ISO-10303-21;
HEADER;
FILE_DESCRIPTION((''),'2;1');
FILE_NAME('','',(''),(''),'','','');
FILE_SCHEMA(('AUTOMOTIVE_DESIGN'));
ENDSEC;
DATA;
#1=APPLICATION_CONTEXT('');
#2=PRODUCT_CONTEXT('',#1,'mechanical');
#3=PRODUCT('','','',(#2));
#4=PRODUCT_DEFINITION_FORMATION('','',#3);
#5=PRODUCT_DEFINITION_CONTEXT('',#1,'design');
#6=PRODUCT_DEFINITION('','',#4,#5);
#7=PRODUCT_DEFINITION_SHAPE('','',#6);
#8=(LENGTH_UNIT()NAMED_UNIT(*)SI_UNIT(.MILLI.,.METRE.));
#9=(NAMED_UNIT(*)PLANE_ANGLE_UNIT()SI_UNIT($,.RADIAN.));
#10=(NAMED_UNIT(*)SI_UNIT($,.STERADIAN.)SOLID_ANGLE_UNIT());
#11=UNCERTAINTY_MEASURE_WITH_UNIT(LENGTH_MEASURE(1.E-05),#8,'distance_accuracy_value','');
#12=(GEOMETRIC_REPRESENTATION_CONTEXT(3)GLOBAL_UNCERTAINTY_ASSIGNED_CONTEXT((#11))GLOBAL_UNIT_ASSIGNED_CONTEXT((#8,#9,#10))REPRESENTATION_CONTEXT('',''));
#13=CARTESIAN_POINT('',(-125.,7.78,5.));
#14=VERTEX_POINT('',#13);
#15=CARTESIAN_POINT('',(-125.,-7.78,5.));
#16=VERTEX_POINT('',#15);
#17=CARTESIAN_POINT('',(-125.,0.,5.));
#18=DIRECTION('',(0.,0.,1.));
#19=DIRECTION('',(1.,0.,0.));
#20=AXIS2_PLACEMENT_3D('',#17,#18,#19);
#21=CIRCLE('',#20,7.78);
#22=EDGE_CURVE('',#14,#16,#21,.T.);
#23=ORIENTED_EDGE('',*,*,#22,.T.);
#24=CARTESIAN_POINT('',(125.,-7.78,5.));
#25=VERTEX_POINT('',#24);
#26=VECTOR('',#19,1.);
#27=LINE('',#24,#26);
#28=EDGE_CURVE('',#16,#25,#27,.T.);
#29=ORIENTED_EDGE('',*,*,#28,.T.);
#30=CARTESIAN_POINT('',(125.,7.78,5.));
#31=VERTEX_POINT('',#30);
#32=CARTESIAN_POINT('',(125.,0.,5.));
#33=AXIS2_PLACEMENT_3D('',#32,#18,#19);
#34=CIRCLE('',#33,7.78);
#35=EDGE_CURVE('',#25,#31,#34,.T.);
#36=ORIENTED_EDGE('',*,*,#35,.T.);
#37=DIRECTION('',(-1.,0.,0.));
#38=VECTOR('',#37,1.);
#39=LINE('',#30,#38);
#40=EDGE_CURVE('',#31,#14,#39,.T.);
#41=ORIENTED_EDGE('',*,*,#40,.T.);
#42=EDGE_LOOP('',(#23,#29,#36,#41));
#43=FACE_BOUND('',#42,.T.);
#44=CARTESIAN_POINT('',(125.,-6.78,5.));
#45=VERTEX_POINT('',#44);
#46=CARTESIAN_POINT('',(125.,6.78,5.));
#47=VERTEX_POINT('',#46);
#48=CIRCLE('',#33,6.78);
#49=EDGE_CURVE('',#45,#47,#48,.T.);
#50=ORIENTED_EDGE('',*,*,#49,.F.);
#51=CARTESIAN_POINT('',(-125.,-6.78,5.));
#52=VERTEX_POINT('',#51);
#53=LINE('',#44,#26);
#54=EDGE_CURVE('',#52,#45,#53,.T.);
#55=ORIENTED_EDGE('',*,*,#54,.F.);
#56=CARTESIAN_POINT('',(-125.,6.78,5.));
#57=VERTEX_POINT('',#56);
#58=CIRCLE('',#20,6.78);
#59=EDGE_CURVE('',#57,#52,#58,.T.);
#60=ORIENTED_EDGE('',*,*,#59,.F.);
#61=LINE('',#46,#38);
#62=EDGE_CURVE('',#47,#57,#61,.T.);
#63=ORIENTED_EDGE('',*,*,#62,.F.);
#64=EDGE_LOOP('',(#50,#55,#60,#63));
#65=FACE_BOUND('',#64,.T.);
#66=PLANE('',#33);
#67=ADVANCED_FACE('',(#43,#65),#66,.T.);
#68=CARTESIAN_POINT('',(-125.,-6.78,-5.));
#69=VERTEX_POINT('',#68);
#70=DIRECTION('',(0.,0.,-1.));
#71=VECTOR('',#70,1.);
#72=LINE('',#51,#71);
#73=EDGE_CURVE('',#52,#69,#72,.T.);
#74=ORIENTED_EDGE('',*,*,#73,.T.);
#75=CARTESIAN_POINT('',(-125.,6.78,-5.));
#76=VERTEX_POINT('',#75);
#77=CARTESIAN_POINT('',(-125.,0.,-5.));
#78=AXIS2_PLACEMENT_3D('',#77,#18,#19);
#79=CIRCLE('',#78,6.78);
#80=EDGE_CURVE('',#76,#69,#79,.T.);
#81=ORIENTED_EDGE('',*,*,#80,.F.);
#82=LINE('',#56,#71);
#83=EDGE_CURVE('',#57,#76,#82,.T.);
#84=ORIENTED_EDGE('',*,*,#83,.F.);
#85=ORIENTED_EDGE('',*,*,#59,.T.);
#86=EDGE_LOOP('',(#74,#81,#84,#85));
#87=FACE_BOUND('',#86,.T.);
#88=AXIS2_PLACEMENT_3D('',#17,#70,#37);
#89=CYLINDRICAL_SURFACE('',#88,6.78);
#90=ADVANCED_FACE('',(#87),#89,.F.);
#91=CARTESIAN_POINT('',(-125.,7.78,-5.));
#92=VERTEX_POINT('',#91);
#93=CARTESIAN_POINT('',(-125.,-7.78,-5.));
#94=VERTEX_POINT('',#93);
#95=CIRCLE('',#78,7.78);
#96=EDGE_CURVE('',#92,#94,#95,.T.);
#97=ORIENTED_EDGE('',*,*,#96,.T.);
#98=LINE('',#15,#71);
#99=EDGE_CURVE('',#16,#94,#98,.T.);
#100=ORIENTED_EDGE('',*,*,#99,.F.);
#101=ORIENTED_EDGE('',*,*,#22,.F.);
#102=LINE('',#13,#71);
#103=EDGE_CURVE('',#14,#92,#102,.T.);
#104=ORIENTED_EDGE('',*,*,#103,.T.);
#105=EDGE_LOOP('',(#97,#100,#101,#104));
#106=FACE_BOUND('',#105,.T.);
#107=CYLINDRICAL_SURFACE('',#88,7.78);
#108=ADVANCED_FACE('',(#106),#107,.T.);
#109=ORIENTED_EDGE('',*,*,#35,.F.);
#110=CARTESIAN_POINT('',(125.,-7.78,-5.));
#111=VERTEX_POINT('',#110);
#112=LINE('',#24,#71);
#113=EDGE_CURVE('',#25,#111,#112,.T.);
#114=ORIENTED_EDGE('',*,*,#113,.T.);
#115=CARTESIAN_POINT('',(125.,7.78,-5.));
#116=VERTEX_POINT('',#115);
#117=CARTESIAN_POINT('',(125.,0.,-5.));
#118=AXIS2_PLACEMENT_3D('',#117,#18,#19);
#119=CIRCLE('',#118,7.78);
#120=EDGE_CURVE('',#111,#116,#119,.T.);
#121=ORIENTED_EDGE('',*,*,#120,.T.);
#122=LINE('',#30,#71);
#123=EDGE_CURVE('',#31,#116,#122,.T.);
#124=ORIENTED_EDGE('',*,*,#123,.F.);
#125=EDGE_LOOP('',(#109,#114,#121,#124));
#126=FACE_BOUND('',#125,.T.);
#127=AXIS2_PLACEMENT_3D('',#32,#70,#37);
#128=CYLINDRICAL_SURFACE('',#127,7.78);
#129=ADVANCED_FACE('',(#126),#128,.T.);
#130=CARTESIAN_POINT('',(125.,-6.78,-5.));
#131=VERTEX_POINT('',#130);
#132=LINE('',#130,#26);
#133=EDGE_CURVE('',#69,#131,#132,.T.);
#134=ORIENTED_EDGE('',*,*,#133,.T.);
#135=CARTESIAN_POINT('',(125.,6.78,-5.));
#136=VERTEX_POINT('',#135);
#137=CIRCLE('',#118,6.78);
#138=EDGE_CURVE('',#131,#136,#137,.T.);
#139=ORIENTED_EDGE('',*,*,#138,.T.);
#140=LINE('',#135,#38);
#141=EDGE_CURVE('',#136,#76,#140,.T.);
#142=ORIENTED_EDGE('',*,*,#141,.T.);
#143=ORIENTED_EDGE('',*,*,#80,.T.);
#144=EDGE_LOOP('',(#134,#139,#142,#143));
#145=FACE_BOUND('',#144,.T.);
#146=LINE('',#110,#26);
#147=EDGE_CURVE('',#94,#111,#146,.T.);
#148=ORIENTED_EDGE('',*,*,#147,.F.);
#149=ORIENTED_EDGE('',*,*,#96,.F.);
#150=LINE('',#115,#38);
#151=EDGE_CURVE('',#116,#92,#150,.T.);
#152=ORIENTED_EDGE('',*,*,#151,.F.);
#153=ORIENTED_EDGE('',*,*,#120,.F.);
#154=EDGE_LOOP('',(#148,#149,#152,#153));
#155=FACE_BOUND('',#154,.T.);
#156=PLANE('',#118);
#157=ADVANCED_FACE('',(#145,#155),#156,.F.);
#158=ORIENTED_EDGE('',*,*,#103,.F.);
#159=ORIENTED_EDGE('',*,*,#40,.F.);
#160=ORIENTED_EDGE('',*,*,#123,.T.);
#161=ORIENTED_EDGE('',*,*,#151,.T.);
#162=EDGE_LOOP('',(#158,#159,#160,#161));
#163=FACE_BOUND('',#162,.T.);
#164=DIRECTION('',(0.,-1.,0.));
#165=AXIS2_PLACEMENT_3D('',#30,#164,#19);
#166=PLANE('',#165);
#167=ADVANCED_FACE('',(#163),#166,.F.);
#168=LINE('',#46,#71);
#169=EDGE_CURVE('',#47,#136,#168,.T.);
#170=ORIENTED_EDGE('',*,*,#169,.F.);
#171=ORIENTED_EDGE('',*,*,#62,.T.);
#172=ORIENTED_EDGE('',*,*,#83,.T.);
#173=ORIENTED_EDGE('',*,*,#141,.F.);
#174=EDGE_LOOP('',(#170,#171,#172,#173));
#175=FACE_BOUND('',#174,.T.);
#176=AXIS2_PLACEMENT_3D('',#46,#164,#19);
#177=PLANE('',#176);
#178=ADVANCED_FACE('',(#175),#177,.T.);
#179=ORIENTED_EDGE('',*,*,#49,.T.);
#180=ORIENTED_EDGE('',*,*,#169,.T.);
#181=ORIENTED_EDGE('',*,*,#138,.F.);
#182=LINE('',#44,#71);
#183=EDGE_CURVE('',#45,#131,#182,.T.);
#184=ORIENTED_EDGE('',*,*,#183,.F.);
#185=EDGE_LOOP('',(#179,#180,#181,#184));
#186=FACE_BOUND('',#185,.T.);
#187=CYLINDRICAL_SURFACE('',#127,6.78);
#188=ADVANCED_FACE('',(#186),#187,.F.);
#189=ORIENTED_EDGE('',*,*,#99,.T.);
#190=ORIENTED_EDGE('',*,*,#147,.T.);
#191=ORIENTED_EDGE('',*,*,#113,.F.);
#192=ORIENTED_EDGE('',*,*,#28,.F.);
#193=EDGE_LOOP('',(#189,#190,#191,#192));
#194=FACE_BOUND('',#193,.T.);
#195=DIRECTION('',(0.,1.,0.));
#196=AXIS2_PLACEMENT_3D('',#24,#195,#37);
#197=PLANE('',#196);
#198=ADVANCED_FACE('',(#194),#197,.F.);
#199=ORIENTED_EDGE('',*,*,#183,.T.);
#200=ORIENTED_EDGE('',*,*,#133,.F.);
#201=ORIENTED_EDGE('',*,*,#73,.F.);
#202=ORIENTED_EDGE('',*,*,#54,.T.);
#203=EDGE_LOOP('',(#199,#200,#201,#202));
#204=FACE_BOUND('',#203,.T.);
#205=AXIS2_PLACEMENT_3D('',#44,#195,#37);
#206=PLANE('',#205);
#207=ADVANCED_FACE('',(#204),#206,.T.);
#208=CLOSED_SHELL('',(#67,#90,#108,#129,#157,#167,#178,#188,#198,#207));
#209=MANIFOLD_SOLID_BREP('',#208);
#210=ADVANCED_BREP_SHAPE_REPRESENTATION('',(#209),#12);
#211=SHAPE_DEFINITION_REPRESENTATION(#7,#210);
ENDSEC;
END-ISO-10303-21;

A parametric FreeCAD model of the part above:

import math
import FreeCAD as App
import Part
import Sketcher
from FreeCAD import Vector

doc = App.newDocument("Part")
params = doc.addObject("Spreadsheet::Sheet", "Params")
for row, (alias, value) in enumerate([
    ("sketch1_width", "250 mm"),
    ("sketch1_radius", "7.78 mm"),
    ("sketch1_radius2", "6.78 mm"),
    ("pad1_length", "10 mm"),
], start=1):
    params.set(f"A{row}", alias)
    params.set(f"B{row}", "=" + value)
    params.setAlias(f"B{row}", alias)

body = doc.addObject("PartDesign::Body", "Body")

sketch1 = doc.addObject("Sketcher::SketchObject", "Sketch")
body.addObject(sketch1)
sketch1.AttachmentSupport = (doc.XY_Plane, [""])
sketch1.MapMode = "FlatFace"
sketch1.addGeometry([
    Part.LineSegment(Vector(-125, -7.78, 0), Vector(125, -7.78, 0)),
    Part.ArcOfCircle(Part.Circle(Vector(125, 0, 0), Vector(0, 0, 1), 7.78), math.radians(-90), math.radians(90)),
    Part.LineSegment(Vector(125, 7.78, 0), Vector(-125, 7.78, 0)),
    Part.ArcOfCircle(Part.Circle(Vector(-125, 0, 0), Vector(0, 0, 1), 7.78), math.radians(90), math.radians(270)),
    Part.LineSegment(Vector(125, -6.78, 0), Vector(-125, -6.78, 0)),
    Part.ArcOfCircle(Part.Circle(Vector(-125, 0, 0), Vector(0, 0, 1), 6.78), math.radians(90), math.radians(270)),
    Part.LineSegment(Vector(-125, 6.78, 0), Vector(125, 6.78, 0)),
    Part.ArcOfCircle(Part.Circle(Vector(125, 0, 0), Vector(0, 0, 1), 6.78), math.radians(-90), math.radians(90)),
], False)
sketch1.addConstraint([
    Sketcher.Constraint("Tangent", 0, 2, 1, 1),
    Sketcher.Constraint("Tangent", 1, 2, 2, 1),
    Sketcher.Constraint("Tangent", 2, 2, 3, 1),
    Sketcher.Constraint("Tangent", 3, 2, 0, 1),
    Sketcher.Constraint("Tangent", 4, 2, 5, 2),
    Sketcher.Constraint("Tangent", 5, 1, 6, 1),
    Sketcher.Constraint("Tangent", 6, 2, 7, 2),
    Sketcher.Constraint("Tangent", 7, 1, 4, 1),
    Sketcher.Constraint("Horizontal", 0),
    Sketcher.Constraint("Horizontal", 2),
    Sketcher.Constraint("Horizontal", 4),
    Sketcher.Constraint("Horizontal", 6),
    Sketcher.Constraint("Coincident", 5, 3, 3, 3),
    Sketcher.Constraint("Symmetric", 1, 3, 3, 3, -1, 1),
    Sketcher.Constraint("Vertical", 7, 3, 0, 2),
    Sketcher.Constraint("DistanceX", 0, 1, 0, 2, 250.0),
    Sketcher.Constraint("Radius", 1, 7.78),
    Sketcher.Constraint("Radius", 5, 6.78),
])
sketch1.setExpression("Constraints[15]", "Params.sketch1_width")
sketch1.setExpression("Constraints[16]", "Params.sketch1_radius")
sketch1.setExpression("Constraints[17]", "Params.sketch1_radius2")
pad1 = doc.addObject("PartDesign::Pad", "Pad")
body.addObject(pad1)
pad1.Profile = sketch1
pad1.setExpression("Length", "Params.pad1_length")
pad1.Midplane = True

doc.recompute()
